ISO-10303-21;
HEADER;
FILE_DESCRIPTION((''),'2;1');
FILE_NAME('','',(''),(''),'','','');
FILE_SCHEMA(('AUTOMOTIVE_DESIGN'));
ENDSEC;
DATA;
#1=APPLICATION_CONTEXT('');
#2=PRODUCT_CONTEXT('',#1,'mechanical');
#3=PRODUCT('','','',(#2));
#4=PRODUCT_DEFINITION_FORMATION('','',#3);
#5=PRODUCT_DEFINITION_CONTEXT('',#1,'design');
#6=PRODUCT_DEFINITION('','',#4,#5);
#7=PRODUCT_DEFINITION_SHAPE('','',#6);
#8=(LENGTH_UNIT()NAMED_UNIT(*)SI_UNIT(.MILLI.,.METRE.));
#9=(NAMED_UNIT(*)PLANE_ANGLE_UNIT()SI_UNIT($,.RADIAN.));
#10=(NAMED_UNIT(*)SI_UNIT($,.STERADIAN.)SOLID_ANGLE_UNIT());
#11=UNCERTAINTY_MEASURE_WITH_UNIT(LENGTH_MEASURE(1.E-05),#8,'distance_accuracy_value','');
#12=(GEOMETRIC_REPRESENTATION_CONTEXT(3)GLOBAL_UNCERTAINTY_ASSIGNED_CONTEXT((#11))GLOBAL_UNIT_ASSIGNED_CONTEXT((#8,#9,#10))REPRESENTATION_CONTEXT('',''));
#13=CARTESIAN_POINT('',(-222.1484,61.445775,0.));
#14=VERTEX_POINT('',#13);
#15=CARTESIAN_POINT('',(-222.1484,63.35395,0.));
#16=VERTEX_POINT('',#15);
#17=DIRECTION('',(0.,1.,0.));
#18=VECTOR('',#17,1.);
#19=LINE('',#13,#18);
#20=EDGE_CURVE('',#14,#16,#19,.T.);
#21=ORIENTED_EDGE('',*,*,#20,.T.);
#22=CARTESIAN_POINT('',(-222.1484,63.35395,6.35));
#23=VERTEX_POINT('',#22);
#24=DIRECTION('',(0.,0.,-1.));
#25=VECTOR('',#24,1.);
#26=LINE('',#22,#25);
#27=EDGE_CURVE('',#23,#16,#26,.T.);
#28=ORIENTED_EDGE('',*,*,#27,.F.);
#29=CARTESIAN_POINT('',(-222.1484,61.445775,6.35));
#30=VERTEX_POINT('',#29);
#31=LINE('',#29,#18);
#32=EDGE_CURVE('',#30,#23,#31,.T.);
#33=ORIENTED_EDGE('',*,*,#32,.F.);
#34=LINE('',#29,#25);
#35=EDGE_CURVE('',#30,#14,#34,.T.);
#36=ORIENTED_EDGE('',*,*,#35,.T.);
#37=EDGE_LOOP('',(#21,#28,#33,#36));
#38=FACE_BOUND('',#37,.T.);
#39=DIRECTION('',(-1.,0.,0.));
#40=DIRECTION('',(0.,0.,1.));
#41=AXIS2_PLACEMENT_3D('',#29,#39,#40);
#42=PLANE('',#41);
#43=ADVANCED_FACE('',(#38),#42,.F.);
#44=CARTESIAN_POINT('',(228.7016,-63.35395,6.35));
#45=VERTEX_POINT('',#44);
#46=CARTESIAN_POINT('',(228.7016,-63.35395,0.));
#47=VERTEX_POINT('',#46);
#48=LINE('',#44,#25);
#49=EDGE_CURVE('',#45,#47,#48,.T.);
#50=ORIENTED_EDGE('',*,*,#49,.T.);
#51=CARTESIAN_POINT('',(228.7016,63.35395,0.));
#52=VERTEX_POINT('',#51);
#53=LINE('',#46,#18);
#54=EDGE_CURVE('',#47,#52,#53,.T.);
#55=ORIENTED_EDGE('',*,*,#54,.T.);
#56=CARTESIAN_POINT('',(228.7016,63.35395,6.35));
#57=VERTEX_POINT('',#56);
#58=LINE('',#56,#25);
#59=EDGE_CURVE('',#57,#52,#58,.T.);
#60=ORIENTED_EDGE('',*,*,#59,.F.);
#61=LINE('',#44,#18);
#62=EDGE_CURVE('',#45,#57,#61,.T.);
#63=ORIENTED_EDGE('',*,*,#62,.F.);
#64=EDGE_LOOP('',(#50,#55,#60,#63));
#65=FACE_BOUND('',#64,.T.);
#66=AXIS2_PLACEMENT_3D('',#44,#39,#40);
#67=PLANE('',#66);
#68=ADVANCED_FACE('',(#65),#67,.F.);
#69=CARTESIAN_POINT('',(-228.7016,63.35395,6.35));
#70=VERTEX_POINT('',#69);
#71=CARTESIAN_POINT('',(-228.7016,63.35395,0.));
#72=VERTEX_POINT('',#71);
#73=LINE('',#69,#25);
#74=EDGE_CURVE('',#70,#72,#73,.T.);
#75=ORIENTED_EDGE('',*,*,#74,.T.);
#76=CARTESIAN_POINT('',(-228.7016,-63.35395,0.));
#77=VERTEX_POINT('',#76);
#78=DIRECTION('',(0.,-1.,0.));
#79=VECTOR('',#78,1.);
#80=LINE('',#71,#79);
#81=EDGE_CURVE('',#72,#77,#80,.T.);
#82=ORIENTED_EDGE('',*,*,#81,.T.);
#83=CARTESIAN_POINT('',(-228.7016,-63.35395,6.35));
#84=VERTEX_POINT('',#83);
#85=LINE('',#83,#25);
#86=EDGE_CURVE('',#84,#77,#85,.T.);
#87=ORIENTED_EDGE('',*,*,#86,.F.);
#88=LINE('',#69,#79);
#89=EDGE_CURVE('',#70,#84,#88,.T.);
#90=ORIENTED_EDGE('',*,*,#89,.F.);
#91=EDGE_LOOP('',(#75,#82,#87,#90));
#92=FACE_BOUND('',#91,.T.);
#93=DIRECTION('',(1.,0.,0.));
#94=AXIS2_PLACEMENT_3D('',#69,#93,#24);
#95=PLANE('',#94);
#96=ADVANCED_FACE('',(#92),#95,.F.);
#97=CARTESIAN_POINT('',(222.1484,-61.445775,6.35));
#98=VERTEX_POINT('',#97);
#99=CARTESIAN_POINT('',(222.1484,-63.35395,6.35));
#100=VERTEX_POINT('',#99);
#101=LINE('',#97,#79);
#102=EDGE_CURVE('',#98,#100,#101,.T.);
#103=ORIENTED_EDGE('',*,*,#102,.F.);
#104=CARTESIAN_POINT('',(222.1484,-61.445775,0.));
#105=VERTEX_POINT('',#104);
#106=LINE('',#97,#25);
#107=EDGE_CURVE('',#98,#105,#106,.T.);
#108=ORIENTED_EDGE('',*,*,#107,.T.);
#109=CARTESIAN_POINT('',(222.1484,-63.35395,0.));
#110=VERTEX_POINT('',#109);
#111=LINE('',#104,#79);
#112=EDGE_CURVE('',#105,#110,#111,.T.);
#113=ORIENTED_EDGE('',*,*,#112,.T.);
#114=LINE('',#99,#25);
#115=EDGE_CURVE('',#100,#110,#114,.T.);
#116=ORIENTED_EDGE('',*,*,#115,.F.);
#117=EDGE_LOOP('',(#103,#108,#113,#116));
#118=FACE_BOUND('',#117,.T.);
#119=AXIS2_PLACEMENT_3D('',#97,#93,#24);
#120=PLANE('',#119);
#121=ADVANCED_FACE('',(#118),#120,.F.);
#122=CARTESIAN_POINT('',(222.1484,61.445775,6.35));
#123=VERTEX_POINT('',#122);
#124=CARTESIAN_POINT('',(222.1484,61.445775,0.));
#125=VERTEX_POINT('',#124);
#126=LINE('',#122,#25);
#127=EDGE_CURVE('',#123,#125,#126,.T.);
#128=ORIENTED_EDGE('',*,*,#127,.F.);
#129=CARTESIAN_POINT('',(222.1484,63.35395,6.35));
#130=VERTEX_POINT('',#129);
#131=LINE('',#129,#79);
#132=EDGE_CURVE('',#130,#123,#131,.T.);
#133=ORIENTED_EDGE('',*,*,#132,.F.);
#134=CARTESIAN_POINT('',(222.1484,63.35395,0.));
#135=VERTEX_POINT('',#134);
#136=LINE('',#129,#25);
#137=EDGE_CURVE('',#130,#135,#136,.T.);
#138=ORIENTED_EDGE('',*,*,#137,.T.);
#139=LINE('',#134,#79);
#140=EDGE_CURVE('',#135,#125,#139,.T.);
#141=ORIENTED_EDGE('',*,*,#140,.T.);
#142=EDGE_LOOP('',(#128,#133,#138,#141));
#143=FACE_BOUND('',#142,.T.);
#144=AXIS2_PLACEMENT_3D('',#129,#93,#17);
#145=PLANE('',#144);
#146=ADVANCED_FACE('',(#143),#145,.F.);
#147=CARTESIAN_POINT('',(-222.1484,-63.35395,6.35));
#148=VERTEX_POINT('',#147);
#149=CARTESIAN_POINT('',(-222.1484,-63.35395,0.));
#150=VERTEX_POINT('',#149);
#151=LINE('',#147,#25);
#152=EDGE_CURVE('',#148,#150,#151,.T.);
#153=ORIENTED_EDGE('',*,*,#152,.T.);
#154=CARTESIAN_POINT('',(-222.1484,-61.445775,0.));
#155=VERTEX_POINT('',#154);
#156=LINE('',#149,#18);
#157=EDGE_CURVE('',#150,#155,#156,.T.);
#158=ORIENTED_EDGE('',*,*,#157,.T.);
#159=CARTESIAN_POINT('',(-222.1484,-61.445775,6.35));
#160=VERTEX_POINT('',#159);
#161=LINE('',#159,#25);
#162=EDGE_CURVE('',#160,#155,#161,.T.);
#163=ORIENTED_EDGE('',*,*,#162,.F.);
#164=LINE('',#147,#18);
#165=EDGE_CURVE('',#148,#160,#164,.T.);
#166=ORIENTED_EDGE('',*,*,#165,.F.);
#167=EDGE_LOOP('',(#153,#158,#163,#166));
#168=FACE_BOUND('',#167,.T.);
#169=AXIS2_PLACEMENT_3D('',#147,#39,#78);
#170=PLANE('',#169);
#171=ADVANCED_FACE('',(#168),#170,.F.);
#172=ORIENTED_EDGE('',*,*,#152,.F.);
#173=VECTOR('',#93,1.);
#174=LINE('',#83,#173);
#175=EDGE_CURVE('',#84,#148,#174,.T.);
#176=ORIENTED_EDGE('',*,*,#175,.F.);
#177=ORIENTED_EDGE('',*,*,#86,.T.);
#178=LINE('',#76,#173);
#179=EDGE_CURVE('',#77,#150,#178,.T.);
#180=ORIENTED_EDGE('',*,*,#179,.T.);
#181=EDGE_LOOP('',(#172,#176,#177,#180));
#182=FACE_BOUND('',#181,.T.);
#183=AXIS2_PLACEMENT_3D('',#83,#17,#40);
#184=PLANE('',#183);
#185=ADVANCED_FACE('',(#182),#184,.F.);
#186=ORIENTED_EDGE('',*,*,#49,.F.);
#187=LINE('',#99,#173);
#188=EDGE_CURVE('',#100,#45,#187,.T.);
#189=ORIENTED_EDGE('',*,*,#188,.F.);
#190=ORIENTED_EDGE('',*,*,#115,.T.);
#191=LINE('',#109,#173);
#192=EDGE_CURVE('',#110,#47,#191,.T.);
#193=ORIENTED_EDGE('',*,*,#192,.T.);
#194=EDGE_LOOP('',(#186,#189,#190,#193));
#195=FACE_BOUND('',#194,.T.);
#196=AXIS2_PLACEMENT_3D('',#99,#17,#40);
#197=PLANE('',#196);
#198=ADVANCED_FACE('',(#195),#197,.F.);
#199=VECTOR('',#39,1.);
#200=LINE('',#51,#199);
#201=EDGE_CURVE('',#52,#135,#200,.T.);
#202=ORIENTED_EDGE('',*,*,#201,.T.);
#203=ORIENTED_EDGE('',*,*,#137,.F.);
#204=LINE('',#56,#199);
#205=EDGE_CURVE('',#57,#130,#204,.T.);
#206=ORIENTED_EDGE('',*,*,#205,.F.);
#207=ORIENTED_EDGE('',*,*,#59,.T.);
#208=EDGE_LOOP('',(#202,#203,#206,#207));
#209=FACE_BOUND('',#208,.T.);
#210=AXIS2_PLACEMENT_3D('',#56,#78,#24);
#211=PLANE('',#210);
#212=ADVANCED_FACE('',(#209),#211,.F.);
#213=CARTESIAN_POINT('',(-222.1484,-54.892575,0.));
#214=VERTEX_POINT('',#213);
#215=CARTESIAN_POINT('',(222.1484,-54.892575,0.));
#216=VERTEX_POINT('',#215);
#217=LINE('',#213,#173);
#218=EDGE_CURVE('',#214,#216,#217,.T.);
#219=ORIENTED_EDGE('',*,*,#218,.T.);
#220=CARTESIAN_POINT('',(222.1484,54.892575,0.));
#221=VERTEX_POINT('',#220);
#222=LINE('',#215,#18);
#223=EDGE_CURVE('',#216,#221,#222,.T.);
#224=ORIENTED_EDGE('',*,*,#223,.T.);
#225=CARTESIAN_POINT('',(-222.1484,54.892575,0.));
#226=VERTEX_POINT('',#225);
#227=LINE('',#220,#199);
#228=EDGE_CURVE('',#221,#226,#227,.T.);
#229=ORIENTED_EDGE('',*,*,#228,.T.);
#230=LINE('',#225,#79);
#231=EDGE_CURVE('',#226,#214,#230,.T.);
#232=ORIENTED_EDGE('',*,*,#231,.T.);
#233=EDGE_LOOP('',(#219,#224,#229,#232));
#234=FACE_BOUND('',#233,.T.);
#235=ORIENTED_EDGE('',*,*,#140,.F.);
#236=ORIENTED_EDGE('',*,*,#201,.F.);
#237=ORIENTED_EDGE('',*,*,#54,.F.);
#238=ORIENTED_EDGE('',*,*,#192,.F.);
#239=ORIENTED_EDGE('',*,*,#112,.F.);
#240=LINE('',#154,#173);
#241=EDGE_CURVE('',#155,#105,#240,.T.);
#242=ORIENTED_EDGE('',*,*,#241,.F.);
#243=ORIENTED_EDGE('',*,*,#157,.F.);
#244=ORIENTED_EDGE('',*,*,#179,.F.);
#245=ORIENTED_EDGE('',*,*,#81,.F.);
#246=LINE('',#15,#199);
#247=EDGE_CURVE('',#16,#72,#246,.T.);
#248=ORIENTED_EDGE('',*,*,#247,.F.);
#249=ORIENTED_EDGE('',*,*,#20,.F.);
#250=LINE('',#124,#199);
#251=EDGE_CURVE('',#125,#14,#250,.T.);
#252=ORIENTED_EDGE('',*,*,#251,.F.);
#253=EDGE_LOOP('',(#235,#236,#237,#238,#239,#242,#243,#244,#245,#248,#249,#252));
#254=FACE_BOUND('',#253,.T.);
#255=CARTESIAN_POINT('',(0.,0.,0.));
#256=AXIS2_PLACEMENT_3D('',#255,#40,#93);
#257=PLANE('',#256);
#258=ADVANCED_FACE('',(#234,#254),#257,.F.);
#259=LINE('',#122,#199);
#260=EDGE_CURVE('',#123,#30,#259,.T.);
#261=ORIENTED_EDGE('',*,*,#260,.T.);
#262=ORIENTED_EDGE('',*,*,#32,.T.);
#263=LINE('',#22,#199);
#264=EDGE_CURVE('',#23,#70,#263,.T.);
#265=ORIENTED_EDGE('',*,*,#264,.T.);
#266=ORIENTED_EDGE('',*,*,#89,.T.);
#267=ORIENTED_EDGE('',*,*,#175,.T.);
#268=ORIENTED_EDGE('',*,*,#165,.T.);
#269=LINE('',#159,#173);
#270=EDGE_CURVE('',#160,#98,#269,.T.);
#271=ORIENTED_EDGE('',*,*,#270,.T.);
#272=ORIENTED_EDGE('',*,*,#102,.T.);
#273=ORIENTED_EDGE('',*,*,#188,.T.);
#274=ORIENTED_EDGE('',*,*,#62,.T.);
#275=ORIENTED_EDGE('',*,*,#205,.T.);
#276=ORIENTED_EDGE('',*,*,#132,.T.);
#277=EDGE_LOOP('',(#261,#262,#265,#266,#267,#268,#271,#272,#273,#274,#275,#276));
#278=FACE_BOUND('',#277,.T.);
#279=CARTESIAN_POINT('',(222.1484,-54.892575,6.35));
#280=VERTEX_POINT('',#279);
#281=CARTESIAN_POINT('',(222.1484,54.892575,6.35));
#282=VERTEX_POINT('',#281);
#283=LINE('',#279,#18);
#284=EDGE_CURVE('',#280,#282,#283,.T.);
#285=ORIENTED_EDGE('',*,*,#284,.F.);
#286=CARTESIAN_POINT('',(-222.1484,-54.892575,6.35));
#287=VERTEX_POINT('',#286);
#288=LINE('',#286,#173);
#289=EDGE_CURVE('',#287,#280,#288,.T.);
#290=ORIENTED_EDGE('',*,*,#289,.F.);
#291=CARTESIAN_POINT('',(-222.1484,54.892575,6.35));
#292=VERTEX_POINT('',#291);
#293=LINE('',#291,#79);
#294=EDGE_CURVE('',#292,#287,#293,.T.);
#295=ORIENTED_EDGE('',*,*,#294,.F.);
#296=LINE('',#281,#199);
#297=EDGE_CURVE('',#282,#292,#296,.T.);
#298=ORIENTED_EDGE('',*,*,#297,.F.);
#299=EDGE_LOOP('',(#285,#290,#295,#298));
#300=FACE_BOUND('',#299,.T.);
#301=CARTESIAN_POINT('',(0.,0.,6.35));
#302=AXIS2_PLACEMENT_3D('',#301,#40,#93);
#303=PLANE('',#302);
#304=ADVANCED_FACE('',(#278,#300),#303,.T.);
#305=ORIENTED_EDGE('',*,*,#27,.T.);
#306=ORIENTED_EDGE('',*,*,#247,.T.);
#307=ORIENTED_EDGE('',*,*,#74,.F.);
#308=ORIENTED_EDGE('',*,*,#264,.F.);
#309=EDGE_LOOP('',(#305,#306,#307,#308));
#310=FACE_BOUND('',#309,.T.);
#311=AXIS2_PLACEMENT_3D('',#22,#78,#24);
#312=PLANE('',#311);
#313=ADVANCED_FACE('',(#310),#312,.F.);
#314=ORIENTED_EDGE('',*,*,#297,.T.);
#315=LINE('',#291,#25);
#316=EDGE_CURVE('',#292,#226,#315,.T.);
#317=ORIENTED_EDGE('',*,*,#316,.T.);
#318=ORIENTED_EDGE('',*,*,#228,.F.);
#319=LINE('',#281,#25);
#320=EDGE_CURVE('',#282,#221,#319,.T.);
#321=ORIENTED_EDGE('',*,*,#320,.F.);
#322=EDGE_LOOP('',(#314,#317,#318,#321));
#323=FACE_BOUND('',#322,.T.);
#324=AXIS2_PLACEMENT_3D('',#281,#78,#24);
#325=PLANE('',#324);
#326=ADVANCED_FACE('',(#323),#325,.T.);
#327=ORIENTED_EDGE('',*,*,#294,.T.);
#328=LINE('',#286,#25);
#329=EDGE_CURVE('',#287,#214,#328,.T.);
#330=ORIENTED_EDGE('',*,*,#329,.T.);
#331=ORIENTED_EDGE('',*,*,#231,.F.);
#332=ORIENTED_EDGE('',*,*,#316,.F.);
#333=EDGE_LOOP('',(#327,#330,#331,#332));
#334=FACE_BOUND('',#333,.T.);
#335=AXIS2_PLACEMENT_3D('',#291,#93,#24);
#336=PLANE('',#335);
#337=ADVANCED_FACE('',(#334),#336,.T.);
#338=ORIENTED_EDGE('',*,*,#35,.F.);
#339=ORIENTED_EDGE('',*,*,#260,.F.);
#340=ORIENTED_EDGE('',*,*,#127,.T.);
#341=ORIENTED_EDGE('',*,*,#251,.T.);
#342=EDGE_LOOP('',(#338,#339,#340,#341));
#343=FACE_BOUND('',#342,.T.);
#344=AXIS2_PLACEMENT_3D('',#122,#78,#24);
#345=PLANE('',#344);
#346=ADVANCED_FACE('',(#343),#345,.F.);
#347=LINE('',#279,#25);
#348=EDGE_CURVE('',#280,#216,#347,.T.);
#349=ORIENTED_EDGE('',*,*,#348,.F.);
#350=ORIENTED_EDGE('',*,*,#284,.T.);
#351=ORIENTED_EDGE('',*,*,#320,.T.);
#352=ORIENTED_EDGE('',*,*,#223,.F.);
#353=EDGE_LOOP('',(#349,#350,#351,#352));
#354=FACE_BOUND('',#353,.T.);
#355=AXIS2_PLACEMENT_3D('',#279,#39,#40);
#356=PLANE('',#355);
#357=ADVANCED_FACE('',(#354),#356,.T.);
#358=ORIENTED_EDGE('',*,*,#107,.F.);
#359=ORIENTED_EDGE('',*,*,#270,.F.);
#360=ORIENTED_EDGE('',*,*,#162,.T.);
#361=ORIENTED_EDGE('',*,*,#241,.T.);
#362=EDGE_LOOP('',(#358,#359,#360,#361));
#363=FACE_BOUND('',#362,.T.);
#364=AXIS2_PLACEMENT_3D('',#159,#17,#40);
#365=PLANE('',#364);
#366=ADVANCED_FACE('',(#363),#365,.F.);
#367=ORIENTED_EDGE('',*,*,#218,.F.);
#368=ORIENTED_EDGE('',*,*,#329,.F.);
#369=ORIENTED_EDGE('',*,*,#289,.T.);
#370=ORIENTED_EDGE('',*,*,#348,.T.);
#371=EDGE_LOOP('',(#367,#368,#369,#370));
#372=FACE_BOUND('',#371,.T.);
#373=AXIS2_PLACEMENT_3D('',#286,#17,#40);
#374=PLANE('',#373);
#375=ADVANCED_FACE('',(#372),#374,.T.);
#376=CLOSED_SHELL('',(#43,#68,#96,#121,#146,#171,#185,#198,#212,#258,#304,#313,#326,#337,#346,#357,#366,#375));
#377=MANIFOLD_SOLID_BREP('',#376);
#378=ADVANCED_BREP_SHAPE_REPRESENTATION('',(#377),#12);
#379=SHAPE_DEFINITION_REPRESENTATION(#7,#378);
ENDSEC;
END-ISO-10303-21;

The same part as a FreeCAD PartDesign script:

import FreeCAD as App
import Part
import Sketcher
Q = App.Units.Quantity

doc = App.newDocument("Part")
params = doc.addObject("Spreadsheet::Sheet", "Params")
for row, (alias, value) in enumerate([
    ("sketch1_width", "0.258 in"),
    ("sketch1_width2", "17.492 in"),
    ("pad1_length", "0.25 in"),
], start=1):
    params.set(f"A{row}", alias)
    params.set(f"B{row}", "=" + value)
    params.setAlias(f"B{row}", alias)

body = doc.addObject("PartDesign::Body", "Body")

sketch1 = doc.addObject("Sketcher::SketchObject", "Sketch")
body.addObject(sketch1)
sketch1.AttachmentSupport = (doc.XY_Plane, [""])
sketch1.MapMode = "FlatFace"
sketch1.addGeometry(Part.LineSegment(App.Vector(222.1, -63.4, 0), App.Vector(228.7, -63.4, 0)), False)
sketch1.addGeometry(Part.LineSegment(App.Vector(228.7, -63.4, 0), App.Vector(228.7, 63.4, 0)), False)
sketch1.addGeometry(Part.LineSegment(App.Vector(228.7, 63.4, 0), App.Vector(222.1, 63.4, 0)), False)
sketch1.addGeometry(Part.LineSegment(App.Vector(222.1, 63.4, 0), App.Vector(222.1, 61.4, 0)), False)
sketch1.addGeometry(Part.LineSegment(App.Vector(222.1, 61.4, 0), App.Vector(-222.1, 61.4, 0)), False)
sketch1.addGeometry(Part.LineSegment(App.Vector(-222.1, 61.4, 0), App.Vector(-222.1, 63.4, 0)), False)
sketch1.addGeometry(Part.LineSegment(App.Vector(-222.1, 63.4, 0), App.Vector(-228.7, 63.4, 0)), False)
sketch1.addGeometry(Part.LineSegment(App.Vector(-228.7, 63.4, 0), App.Vector(-228.7, -63.4, 0)), False)
sketch1.addGeometry(Part.LineSegment(App.Vector(-228.7, -63.4, 0), App.Vector(-222.1, -63.4, 0)), False)
sketch1.addGeometry(Part.LineSegment(App.Vector(-222.1, -63.4, 0), App.Vector(-222.1, -61.4, 0)), False)
sketch1.addGeometry(Part.LineSegment(App.Vector(-222.1, -61.4, 0), App.Vector(222.1, -61.4, 0)), False)
sketch1.addGeometry(Part.LineSegment(App.Vector(222.1, -61.4, 0), App.Vector(222.1, -63.4, 0)), False)
sketch1.addGeometry(Part.LineSegment(App.Vector(222.1, -54.9, 0), App.Vector(-222.1, -54.9, 0)), False)
sketch1.addGeometry(Part.LineSegment(App.Vector(-222.1, -54.9, 0), App.Vector(-222.1, 54.9, 0)), False)
sketch1.addGeometry(Part.LineSegment(App.Vector(-222.1, 54.9, 0), App.Vector(222.1, 54.9, 0)), False)
sketch1.addGeometry(Part.LineSegment(App.Vector(222.1, 54.9, 0), App.Vector(222.1, -54.9, 0)), False)
sketch1.addConstraint(Sketcher.Constraint("Coincident", 0, 2, 1, 1))
sketch1.addConstraint(Sketcher.Constraint("Coincident", 1, 2, 2, 1))
sketch1.addConstraint(Sketcher.Constraint("Coincident", 2, 2, 3, 1))
sketch1.addConstraint(Sketcher.Constraint("Coincident", 3, 2, 4, 1))
sketch1.addConstraint(Sketcher.Constraint("Coincident", 4, 2, 5, 1))
sketch1.addConstraint(Sketcher.Constraint("Coincident", 5, 2, 6, 1))
sketch1.addConstraint(Sketcher.Constraint("Coincident", 6, 2, 7, 1))
sketch1.addConstraint(Sketcher.Constraint("Coincident", 7, 2, 8, 1))
sketch1.addConstraint(Sketcher.Constraint("Coincident", 8, 2, 9, 1))
sketch1.addConstraint(Sketcher.Constraint("Coincident", 9, 2, 10, 1))
sketch1.addConstraint(Sketcher.Constraint("Coincident", 10, 2, 11, 1))
sketch1.addConstraint(Sketcher.Constraint("Coincident", 11, 2, 0, 1))
sketch1.addConstraint(Sketcher.Constraint("Coincident", 12, 2, 13, 1))
sketch1.addConstraint(Sketcher.Constraint("Coincident", 13, 2, 14, 1))
sketch1.addConstraint(Sketcher.Constraint("Coincident", 14, 2, 15, 1))
sketch1.addConstraint(Sketcher.Constraint("Coincident", 15, 2, 12, 1))
sketch1.addConstraint(Sketcher.Constraint("Horizontal", 0))
sketch1.addConstraint(Sketcher.Constraint("Vertical", 1))
sketch1.addConstraint(Sketcher.Constraint("Horizontal", 2))
sketch1.addConstraint(Sketcher.Constraint("Vertical", 3))
sketch1.addConstraint(Sketcher.Constraint("Horizontal", 4))
sketch1.addConstraint(Sketcher.Constraint("Vertical", 5))
sketch1.addConstraint(Sketcher.Constraint("Horizontal", 6))
sketch1.addConstraint(Sketcher.Constraint("Vertical", 7))
sketch1.addConstraint(Sketcher.Constraint("Horizontal", 8))
sketch1.addConstraint(Sketcher.Constraint("Vertical", 9))
sketch1.addConstraint(Sketcher.Constraint("Horizontal", 10))
sketch1.addConstraint(Sketcher.Constraint("Vertical", 11))
sketch1.addConstraint(Sketcher.Constraint("Horizontal", 12))
sketch1.addConstraint(Sketcher.Constraint("Vertical", 13))
sketch1.addConstraint(Sketcher.Constraint("Horizontal", 14))
sketch1.addConstraint(Sketcher.Constraint("Vertical", 15))
sketch1.addConstraint(Sketcher.Constraint("Symmetric", 0, 2, 6, 2, -1, 1))
sketch1.addConstraint(Sketcher.Constraint("Symmetric", 2, 2, 8, 2, -1, 1))
sketch1.addConstraint(Sketcher.Constraint("Symmetric", 4, 2, 10, 2, -1, 1))
sketch1.addConstraint(Sketcher.Constraint("Symmetric", 12, 2, 14, 2, -1, 1))
sketch1.addConstraint(Sketcher.Constraint("Symmetric", 2, 2, 5, 2, -2))
sketch1.addConstraint(Sketcher.Constraint("Vertical", 9, 2, 12, 2))
sketch1.addConstraint(Sketcher.Constraint("DistanceX", 0, 1, 0, 2, Q("0.258 in")))
sketch1.addConstraint(Sketcher.Constraint("DistanceX", 4, 2, 4, 1, Q("17.492 in")))
sketch1.addConstraint(Sketcher.Constraint("DistanceY", 1, 1, 1, 2, Q("4.9885 in")))
sketch1.addConstraint(Sketcher.Constraint("DistanceY", 9, 2, 12, 2, Q("0.258 in")))
sketch1.addConstraint(Sketcher.Constraint("DistanceY", 13, 1, 13, 2, Q("109.78515 mm")))
sketch1.setExpression("Constraints[38]", "Params.sketch1_width")
sketch1.setExpression("Constraints[39]", "Params.sketch1_width2")
pad1 = doc.addObject("PartDesign::Pad", "Pad")
body.addObject(pad1)
pad1.Profile = sketch1
pad1.setExpression("Length", "Params.pad1_length")

doc.recompute()
